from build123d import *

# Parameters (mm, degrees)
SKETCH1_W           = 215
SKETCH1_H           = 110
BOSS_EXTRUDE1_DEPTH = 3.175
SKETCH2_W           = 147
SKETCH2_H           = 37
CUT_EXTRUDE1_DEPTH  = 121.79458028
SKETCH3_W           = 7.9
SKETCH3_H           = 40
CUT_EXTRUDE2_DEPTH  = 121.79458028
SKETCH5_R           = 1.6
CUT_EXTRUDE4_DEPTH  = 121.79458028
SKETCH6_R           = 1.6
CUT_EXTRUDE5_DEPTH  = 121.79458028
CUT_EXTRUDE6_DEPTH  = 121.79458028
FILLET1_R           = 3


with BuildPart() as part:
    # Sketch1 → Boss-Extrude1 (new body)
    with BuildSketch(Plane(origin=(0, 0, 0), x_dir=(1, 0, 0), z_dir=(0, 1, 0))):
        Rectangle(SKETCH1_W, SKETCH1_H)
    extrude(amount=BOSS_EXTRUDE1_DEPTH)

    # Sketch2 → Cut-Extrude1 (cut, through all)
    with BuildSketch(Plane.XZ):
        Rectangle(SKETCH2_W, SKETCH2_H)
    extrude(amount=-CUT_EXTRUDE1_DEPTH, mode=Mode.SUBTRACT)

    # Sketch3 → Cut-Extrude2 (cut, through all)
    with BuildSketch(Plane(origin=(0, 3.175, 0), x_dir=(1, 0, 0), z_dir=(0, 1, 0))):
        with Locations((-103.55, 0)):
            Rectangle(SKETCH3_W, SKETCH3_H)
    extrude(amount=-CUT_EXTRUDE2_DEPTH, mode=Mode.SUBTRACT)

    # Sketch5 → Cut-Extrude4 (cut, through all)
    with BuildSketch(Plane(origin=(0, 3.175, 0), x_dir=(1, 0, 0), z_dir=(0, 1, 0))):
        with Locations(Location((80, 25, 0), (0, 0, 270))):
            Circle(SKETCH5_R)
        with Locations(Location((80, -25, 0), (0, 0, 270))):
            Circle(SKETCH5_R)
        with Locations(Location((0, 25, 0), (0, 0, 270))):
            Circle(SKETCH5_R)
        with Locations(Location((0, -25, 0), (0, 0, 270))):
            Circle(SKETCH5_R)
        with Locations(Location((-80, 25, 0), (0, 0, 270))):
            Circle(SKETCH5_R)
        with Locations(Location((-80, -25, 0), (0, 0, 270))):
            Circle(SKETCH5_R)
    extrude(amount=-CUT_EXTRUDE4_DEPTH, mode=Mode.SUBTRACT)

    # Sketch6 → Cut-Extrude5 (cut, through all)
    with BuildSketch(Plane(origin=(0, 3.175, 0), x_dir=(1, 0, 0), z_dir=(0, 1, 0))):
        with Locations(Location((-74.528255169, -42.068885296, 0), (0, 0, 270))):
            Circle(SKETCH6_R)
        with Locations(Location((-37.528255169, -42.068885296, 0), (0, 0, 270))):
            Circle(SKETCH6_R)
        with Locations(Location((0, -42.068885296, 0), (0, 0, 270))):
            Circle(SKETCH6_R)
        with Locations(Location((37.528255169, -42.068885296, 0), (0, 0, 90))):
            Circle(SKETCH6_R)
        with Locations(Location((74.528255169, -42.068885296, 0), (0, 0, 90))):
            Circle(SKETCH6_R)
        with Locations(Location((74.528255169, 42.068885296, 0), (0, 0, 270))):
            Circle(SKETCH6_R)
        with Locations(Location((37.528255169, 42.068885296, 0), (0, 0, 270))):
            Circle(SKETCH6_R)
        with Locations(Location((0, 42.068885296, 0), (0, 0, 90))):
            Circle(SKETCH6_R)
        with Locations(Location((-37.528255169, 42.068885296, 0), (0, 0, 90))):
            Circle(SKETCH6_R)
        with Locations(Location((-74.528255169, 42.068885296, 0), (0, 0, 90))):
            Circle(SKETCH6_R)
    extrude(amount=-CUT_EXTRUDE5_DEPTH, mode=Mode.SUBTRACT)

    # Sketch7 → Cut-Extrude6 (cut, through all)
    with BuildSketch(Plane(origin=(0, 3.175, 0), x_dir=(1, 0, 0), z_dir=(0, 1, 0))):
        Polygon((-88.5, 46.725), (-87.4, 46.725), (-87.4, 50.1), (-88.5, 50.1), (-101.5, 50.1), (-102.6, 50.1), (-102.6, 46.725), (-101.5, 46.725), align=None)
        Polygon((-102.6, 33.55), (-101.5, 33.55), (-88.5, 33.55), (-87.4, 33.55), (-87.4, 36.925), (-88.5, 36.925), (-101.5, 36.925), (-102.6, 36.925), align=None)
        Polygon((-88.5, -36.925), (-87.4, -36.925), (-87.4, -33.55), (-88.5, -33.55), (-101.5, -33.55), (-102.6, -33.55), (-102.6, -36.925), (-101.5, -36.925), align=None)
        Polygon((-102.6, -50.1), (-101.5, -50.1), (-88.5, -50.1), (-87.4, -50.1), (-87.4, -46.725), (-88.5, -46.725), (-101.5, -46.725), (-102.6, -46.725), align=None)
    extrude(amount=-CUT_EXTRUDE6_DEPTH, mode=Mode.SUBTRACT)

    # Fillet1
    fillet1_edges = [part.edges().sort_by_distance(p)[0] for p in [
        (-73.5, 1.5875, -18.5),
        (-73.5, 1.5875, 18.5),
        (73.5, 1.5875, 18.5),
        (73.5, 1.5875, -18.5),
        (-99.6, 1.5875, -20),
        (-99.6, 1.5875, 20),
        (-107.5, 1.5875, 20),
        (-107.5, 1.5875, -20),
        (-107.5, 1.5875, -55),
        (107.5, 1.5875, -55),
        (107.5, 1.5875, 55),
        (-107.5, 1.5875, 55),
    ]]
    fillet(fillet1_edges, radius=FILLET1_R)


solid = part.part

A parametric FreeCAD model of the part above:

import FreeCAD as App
import Part
import Sketcher


def edges_at(feature, points):
    """Names of the edges that pass closest to the given points."""
    edges = feature.Shape.Edges
    near = lambda p: min(range(len(edges)), key=lambda i: edges[i].distToShape(Part.Vertex(*p))[0])
    return sorted({f"Edge{near(p) + 1}" for p in points})


def add_polygon(sketch, points):
    """Adds a closed chain of lines whose ends are joined by coincident constraints."""
    first, n = sketch.GeometryCount, len(points)
    for a, b in zip(points, points[1:] + points[:1]):
        sketch.addGeometry(Part.LineSegment(App.Vector(*a, 0), App.Vector(*b, 0)), False)
    for i in range(n):
        sketch.addConstraint(Sketcher.Constraint("Coincident", first + i, 2, first + (i + 1) % n, 1))

doc = App.newDocument("Part")
body = doc.addObject("PartDesign::Body", "Body")

sketch1 = doc.addObject("Sketcher::SketchObject", "Sketch")
body.addObject(sketch1)
sketch1.AttachmentSupport = (doc.XZ_Plane, [""])
sketch1.MapMode = "FlatFace"
add_polygon(sketch1, [(-107.5, -55), (-107.5, 55), (107.5, 55), (107.5, -55)])
sketch1.addConstraint(Sketcher.Constraint("Vertical", 0))
sketch1.addConstraint(Sketcher.Constraint("Horizontal", 1))
sketch1.addConstraint(Sketcher.Constraint("Vertical", 2))
sketch1.addConstraint(Sketcher.Constraint("Horizontal", 3))
sketch1.addConstraint(Sketcher.Constraint("Symmetric", 0, 2, 2, 2, -1, 1))
sketch1.addConstraint(Sketcher.Constraint("DistanceX", 1, 1, 1, 2, 215.0))
sketch1.addConstraint(Sketcher.Constraint("DistanceY", 0, 1, 0, 2, 110.0))
pad1 = doc.addObject("PartDesign::Pad", "Pad")
body.addObject(pad1)
pad1.Profile = sketch1
pad1.Length = 3.175
pad1.Reversed = True

sketch2 = doc.addObject("Sketcher::SketchObject", "Sketch001")
body.addObject(sketch2)
sketch2.AttachmentSupport = (doc.XZ_Plane, [""])
sketch2.MapMode = "FlatFace"
add_polygon(sketch2, [(-73.5, 18.5), (-73.5, -18.5), (73.5, -18.5), (73.5, 18.5)])
sketch2.addConstraint(Sketcher.Constraint("Vertical", 0))
sketch2.addConstraint(Sketcher.Constraint("Horizontal", 1))
sketch2.addConstraint(Sketcher.Constraint("Vertical", 2))
sketch2.addConstraint(Sketcher.Constraint("Horizontal", 3))
sketch2.addConstraint(Sketcher.Constraint("Symmetric", 0, 2, 2, 2, -1, 1))
sketch2.addConstraint(Sketcher.Constraint("DistanceX", 1, 1, 1, 2, 147.0))
sketch2.addConstraint(Sketcher.Constraint("DistanceY", 0, 2, 0, 1, 37.0))
pocket1 = doc.addObject("PartDesign::Pocket", "Pocket")
body.addObject(pocket1)
pocket1.Profile = sketch2
pocket1.Type = "ThroughAll"

sketch3 = doc.addObject("Sketcher::SketchObject", "Sketch002")
body.addObject(sketch3)
sketch3.AttachmentSupport = (doc.XZ_Plane, [""])
sketch3.MapMode = "FlatFace"
sketch3.AttachmentOffset = App.Placement(App.Vector(0, 0, -3.175), App.Rotation())
add_polygon(sketch3, [(-107.5, -20), (-107.5, 20), (-99.6, 20), (-99.6, -20)])
sketch3.addConstraint(Sketcher.Constraint("Vertical", 0))
sketch3.addConstraint(Sketcher.Constraint("Horizontal", 1))
sketch3.addConstraint(Sketcher.Constraint("Vertical", 2))
sketch3.addConstraint(Sketcher.Constraint("Horizontal", 3))
sketch3.addConstraint(Sketcher.Constraint("DistanceY", 0, 1, 0, 2, 40.0))
sketch3.addConstraint(Sketcher.Constraint("DistanceX", 1, 1, 1, 2, 7.9))
sketch3.addConstraint(Sketcher.Constraint("DistanceY", -1, 1, 0, 2, 20.0))
sketch3.addConstraint(Sketcher.Constraint("DistanceX", 0, 2, -1, 1, 107.5))
pocket2 = doc.addObject("PartDesign::Pocket", "Pocket001")
body.addObject(pocket2)
pocket2.Profile = sketch3
pocket2.Type = "ThroughAll"
pocket2.Reversed = True

sketch4 = doc.addObject("Sketcher::SketchObject", "Sketch003")
body.addObject(sketch4)
sketch4.AttachmentSupport = (doc.XZ_Plane, [""])
sketch4.MapMode = "FlatFace"
sketch4.AttachmentOffset = App.Placement(App.Vector(0, 0, -3.175), App.Rotation())
sketch4.addGeometry(Part.Circle(App.Vector(80, -25, 0), App.Vector(0, 0, 1), 1.6), False)
sketch4.addGeometry(Part.Circle(App.Vector(80, 25, 0), App.Vector(0, 0, 1), 1.6), False)
sketch4.addGeometry(Part.Circle(App.Vector(0, -25, 0), App.Vector(0, 0, 1), 1.6), False)
sketch4.addGeometry(Part.Circle(App.Vector(0, 25, 0), App.Vector(0, 0, 1), 1.6), False)
sketch4.addGeometry(Part.Circle(App.Vector(-80, -25, 0), App.Vector(0, 0, 1), 1.6), False)
sketch4.addGeometry(Part.Circle(App.Vector(-80, 25, 0), App.Vector(0, 0, 1), 1.6), False)
sketch4.addConstraint(Sketcher.Constraint("Equal", 0, 1))
sketch4.addConstraint(Sketcher.Constraint("Equal", 1, 2))
sketch4.addConstraint(Sketcher.Constraint("Equal", 2, 3))
sketch4.addConstraint(Sketcher.Constraint("Equal", 3, 4))
sketch4.addConstraint(Sketcher.Constraint("Equal", 4, 5))
sketch4.addConstraint(Sketcher.Constraint("Symmetric", 2, 3, 3, 3, -1, 1))
sketch4.addConstraint(Sketcher.Constraint("Symmetric", 1, 3, 4, 3, -1, 1))
sketch4.addConstraint(Sketcher.Constraint("Symmetric", 0, 3, 5, 3, -1, 1))
sketch4.addConstraint(Sketcher.Constraint("Symmetric", 0, 3, 4, 3, -2))
sketch4.addConstraint(Sketcher.Constraint("PointOnObject", 2, 3, -2))
sketch4.addConstraint(Sketcher.Constraint("Horizontal", 0, 3, 2, 3))
sketch4.addConstraint(Sketcher.Constraint("Diameter", 0, 3.2))
sketch4.addConstraint(Sketcher.Constraint("DistanceX", -1, 1, 0, 3, 80.0))
sketch4.addConstraint(Sketcher.Constraint("DistanceY", 0, 3, -1, 1, 25.0))
pocket3 = doc.addObject("PartDesign::Pocket", "Pocket002")
body.addObject(pocket3)
pocket3.Profile = sketch4
pocket3.Type = "ThroughAll"
pocket3.Reversed = True

sketch5 = doc.addObject("Sketcher::SketchObject", "Sketch004")
body.addObject(sketch5)
sketch5.AttachmentSupport = (doc.XZ_Plane, [""])
sketch5.MapMode = "FlatFace"
sketch5.AttachmentOffset = App.Placement(App.Vector(0, 0, -3.175), App.Rotation())
sketch5.addGeometry(Part.Circle(App.Vector(-74.528255, 42.068885, 0), App.Vector(0, 0, 1), 1.6), False)
sketch5.addGeometry(Part.Circle(App.Vector(-37.528255, 42.068885, 0), App.Vector(0, 0, 1), 1.6), False)
sketch5.addGeometry(Part.Circle(App.Vector(0, 42.068885, 0), App.Vector(0, 0, 1), 1.6), False)
sketch5.addGeometry(Part.Circle(App.Vector(37.528255, 42.068885, 0), App.Vector(0, 0, 1), 1.6), False)
sketch5.addGeometry(Part.Circle(App.Vector(74.528255, 42.068885, 0), App.Vector(0, 0, 1), 1.6), False)
sketch5.addGeometry(Part.Circle(App.Vector(74.528255, -42.068885, 0), App.Vector(0, 0, 1), 1.6), False)
sketch5.addGeometry(Part.Circle(App.Vector(37.528255, -42.068885, 0), App.Vector(0, 0, 1), 1.6), False)
sketch5.addGeometry(Part.Circle(App.Vector(0, -42.068885, 0), App.Vector(0, 0, 1), 1.6), False)
sketch5.addGeometry(Part.Circle(App.Vector(-37.528255, -42.068885, 0), App.Vector(0, 0, 1), 1.6), False)
sketch5.addGeometry(Part.Circle(App.Vector(-74.528255, -42.068885, 0), App.Vector(0, 0, 1), 1.6), False)
sketch5.addConstraint(Sketcher.Constraint("Equal", 0, 1))
sketch5.addConstraint(Sketcher.Constraint("Equal", 1, 2))
sketch5.addConstraint(Sketcher.Constraint("Equal", 2, 3))
sketch5.addConstraint(Sketcher.Constraint("Equal", 3, 4))
sketch5.addConstraint(Sketcher.Constraint("Equal", 4, 5))
sketch5.addConstraint(Sketcher.Constraint("Equal", 5, 6))
sketch5.addConstraint(Sketcher.Constraint("Equal", 6, 7))
sketch5.addConstraint(Sketcher.Constraint("Equal", 7, 8))
sketch5.addConstraint(Sketcher.Constraint("Equal", 8, 9))
sketch5.addConstraint(Sketcher.Constraint("Symmetric", 0, 3, 5, 3, -1, 1))
sketch5.addConstraint(Sketcher.Constraint("Symmetric", 1, 3, 6, 3, -1, 1))
sketch5.addConstraint(Sketcher.Constraint("Symmetric", 2, 3, 7, 3, -1, 1))
sketch5.addConstraint(Sketcher.Constraint("Symmetric", 3, 3, 8, 3, -1, 1))
sketch5.addConstraint(Sketcher.Constraint("Symmetric", 4, 3, 9, 3, -1, 1))
sketch5.addConstraint(Sketcher.Constraint("Symmetric", 1, 3, 3, 3, -2))
sketch5.addConstraint(Sketcher.Constraint("Symmetric", 0, 3, 4, 3, -2))
sketch5.addConstraint(Sketcher.Constraint("PointOnObject", 2, 3, -2))
sketch5.addConstraint(Sketcher.Constraint("Horizontal", 0, 3, 1, 3))
sketch5.addConstraint(Sketcher.Constraint("Horizontal", 1, 3, 2, 3))
sketch5.addConstraint(Sketcher.Constraint("Diameter", 0, 3.2))
sketch5.addConstraint(Sketcher.Constraint("DistanceX", 0, 3, 1, 3, 37.0))
sketch5.addConstraint(Sketcher.Constraint("DistanceX", 1, 3, 3, 3, 75.05651))
sketch5.addConstraint(Sketcher.Constraint("DistanceY", 5, 3, 4, 3, 84.137771))
pocket4 = doc.addObject("PartDesign::Pocket", "Pocket003")
body.addObject(pocket4)
pocket4.Profile = sketch5
pocket4.Type = "ThroughAll"
pocket4.Reversed = True

sketch6 = doc.addObject("Sketcher::SketchObject", "Sketch005")
body.addObject(sketch6)
sketch6.AttachmentSupport = (doc.XZ_Plane, [""])
sketch6.MapMode = "FlatFace"
sketch6.AttachmentOffset = App.Placement(App.Vector(0, 0, -3.175), App.Rotation())
add_polygon(sketch6, [(-87.4, -46.725), (-87.4, -50.1), (-102.6, -50.1), (-102.6, -46.725)])
add_polygon(sketch6, [(-102.6, -33.55), (-87.4, -33.55), (-87.4, -36.925), (-102.6, -36.925)])
add_polygon(sketch6, [(-87.4, 36.925), (-87.4, 33.55), (-102.6, 33.55), (-102.6, 36.925)])
add_polygon(sketch6, [(-102.6, 50.1), (-87.4, 50.1), (-87.4, 46.725), (-102.6, 46.725)])
sketch6.addConstraint(Sketcher.Constraint("Vertical", 0))
sketch6.addConstraint(Sketcher.Constraint("Horizontal", 1))
sketch6.addConstraint(Sketcher.Constraint("Vertical", 2))
sketch6.addConstraint(Sketcher.Constraint("Horizontal", 3))
sketch6.addConstraint(Sketcher.Constraint("Horizontal", 4))
sketch6.addConstraint(Sketcher.Constraint("Vertical", 5))
sketch6.addConstraint(Sketcher.Constraint("Horizontal", 6))
sketch6.addConstraint(Sketcher.Constraint("Vertical", 7))
sketch6.addConstraint(Sketcher.Constraint("Vertical", 8))
sketch6.addConstraint(Sketcher.Constraint("Horizontal", 9))
sketch6.addConstraint(Sketcher.Constraint("Vertical", 10))
sketch6.addConstraint(Sketcher.Constraint("Horizontal", 11))
sketch6.addConstraint(Sketcher.Constraint("Horizontal", 12))
sketch6.addConstraint(Sketcher.Constraint("Vertical", 13))
sketch6.addConstraint(Sketcher.Constraint("Horizontal", 14))
sketch6.addConstraint(Sketcher.Constraint("Vertical", 15))
sketch6.addConstraint(Sketcher.Constraint("Symmetric", 4, 2, 8, 2, -1))
sketch6.addConstraint(Sketcher.Constraint("Symmetric", 6, 2, 10, 2, -1))
sketch6.addConstraint(Sketcher.Constraint("Symmetric", 0, 2, 12, 2, -1))
sketch6.addConstraint(Sketcher.Constraint("Symmetric", 2, 2, 14, 2, -1))
sketch6.addConstraint(Sketcher.Constraint("Vertical", 3, 2, 4, 2))
sketch6.addConstraint(Sketcher.Constraint("Vertical", 2, 2, 6, 2))
sketch6.addConstraint(Sketcher.Constraint("Equal", 2, 5))
sketch6.addConstraint(Sketcher.Constraint("DistanceX", 1, 2, 1, 1, 15.2))
sketch6.addConstraint(Sketcher.Constraint("DistanceX", 0, 2, -1, 1, 87.4))
sketch6.addConstraint(Sketcher.Constraint("DistanceY", 0, 2, -1, 1, 50.1))
sketch6.addConstraint(Sketcher.Constraint("DistanceY", 3, 2, 5, 2, 9.8))
sketch6.addConstraint(Sketcher.Constraint("DistanceY", 4, 2, 8, 2, 67.1))
pocket5 = doc.addObject("PartDesign::Pocket", "Pocket004")
body.addObject(pocket5)
pocket5.Profile = sketch6
pocket5.Type = "ThroughAll"
pocket5.Reversed = True
doc.recompute()

fillet = doc.addObject("PartDesign::Fillet", "Fillet")
body.addObject(fillet)
fillet.Base = (pocket5, edges_at(pocket5, [
    (-73.5, 1.587, -18.5),
    (-73.5, 1.587, 18.5),
    (73.5, 1.587, 18.5),
    (73.5, 1.587, -18.5),
    (-99.6, 1.587, -20),
    (-99.6, 1.587, 20),
    (-107.5, 1.587, 20),
    (-107.5, 1.587, -20),
    (-107.5, 1.587, -55),
    (107.5, 1.587, -55),
    (107.5, 1.587, 55),
    (-107.5, 1.587, 55),
]))
fillet.Radius = 3

doc.recompute()
